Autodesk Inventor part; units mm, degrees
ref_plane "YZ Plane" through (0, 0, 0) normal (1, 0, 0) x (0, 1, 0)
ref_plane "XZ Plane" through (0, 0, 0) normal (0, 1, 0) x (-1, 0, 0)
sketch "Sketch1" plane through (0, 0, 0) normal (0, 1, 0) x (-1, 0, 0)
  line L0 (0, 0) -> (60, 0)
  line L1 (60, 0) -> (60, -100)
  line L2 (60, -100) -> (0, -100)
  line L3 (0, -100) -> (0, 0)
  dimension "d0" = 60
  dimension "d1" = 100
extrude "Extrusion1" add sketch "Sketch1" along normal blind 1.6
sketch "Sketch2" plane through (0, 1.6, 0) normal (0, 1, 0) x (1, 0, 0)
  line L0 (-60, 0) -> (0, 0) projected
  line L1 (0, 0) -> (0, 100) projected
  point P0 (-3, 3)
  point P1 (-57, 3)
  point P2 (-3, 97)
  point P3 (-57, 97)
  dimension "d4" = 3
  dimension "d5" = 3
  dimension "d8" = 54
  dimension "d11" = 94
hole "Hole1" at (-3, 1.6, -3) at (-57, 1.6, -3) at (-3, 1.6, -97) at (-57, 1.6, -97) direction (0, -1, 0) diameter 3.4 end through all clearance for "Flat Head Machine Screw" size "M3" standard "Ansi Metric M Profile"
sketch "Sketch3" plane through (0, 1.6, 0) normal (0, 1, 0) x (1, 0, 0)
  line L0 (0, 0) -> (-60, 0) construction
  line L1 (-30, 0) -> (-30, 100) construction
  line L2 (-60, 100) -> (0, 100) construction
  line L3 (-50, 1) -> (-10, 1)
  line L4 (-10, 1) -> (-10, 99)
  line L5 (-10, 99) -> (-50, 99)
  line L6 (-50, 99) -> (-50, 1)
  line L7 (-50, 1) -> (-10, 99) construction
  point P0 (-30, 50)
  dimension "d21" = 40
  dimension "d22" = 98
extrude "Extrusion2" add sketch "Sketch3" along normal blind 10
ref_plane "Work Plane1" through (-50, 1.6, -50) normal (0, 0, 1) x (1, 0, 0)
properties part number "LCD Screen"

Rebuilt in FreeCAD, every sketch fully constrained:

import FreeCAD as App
import Part
import Sketcher
from FreeCAD import Vector


def add_polygon(sketch, points):
    """Adds a closed chain of lines whose ends are joined by coincident constraints."""
    first, n = sketch.GeometryCount, len(points)
    for a, b in zip(points, points[1:] + points[:1]):
        sketch.addGeometry(Part.LineSegment(App.Vector(*a, 0), App.Vector(*b, 0)), False)
    for i in range(n):
        sketch.addConstraint(Sketcher.Constraint("Coincident", first + i, 2, first + (i + 1) % n, 1))

doc = App.newDocument("Part")
body = doc.addObject("PartDesign::Body", "Body")

sketch1 = body.newObject("Sketcher::SketchObject", "Sketch")
sketch1.AttachmentSupport = (doc.getObject("XZ_Plane"), [""])
sketch1.MapMode = "FlatFace"
add_polygon(sketch1, [(-60, 0), (0, 0), (0, -100), (-60, -100)])
sketch1.addConstraint([
    Sketcher.Constraint("Horizontal", 0),
    Sketcher.Constraint("Vertical", 1),
    Sketcher.Constraint("Horizontal", 2),
    Sketcher.Constraint("Vertical", 3),
    Sketcher.Constraint("Coincident", 0, 2, -1, 1),
    Sketcher.Constraint("DistanceX", 0, 1, 0, 2, 60.0),
    Sketcher.Constraint("DistanceY", 1, 2, 1, 1, 100.0),
])
pad1 = body.newObject("PartDesign::Pad", "Pad")
pad1.Profile = sketch1
pad1.Length = 1.6
pad1.Reversed = True

sketch2 = body.newObject("Sketcher::SketchObject", "Sketch001")
sketch2.AttachmentSupport = (doc.getObject("XZ_Plane"), [""])
sketch2.MapMode = "FlatFace"
sketch2.AttachmentOffset = App.Placement(Vector(0, 0, -1.6), App.Rotation())
sketch2.addGeometry([
    Part.Circle(Vector(-3, -3, 0), Vector(0, 0, 1), 1.7),
    Part.Circle(Vector(-57, -3, 0), Vector(0, 0, 1), 1.7),
    Part.Circle(Vector(-3, -97, 0), Vector(0, 0, 1), 1.7),
    Part.Circle(Vector(-57, -97, 0), Vector(0, 0, 1), 1.7),
], False)
sketch2.addConstraint([
    Sketcher.Constraint("Equal", 0, 1),
    Sketcher.Constraint("Equal", 1, 2),
    Sketcher.Constraint("Equal", 2, 3),
    Sketcher.Constraint("Horizontal", 0, 3, 1, 3),
    Sketcher.Constraint("Horizontal", 2, 3, 3, 3),
    Sketcher.Constraint("Vertical", 0, 3, 2, 3),
    Sketcher.Constraint("Vertical", 1, 3, 3, 3),
    Sketcher.Constraint("Diameter", 0, 3.4),
    Sketcher.Constraint("DistanceX", 0, 3, -1, 1, 3.0),
    Sketcher.Constraint("DistanceY", 0, 3, -1, 1, 3.0),
    Sketcher.Constraint("DistanceX", 1, 3, -1, 1, 57.0),
    Sketcher.Constraint("DistanceY", 2, 3, -1, 1, 97.0),
])
doc.recompute()
hole = body.newObject("PartDesign::Hole", "Hole")
hole.Profile = sketch2
hole.ThreadType = "None"
hole.Diameter = 3.4
hole.DepthType = "ThroughAll"
hole.Reversed = True

sketch3 = body.newObject("Sketcher::SketchObject", "Sketch002")
sketch3.AttachmentSupport = (doc.getObject("XZ_Plane"), [""])
sketch3.MapMode = "FlatFace"
sketch3.AttachmentOffset = App.Placement(Vector(0, 0, -1.6), App.Rotation())
add_polygon(sketch3, [(-50, -99), (-50, -1), (-10, -1), (-10, -99)])
sketch3.addConstraint([
    Sketcher.Constraint("Vertical", 0),
    Sketcher.Constraint("Horizontal", 1),
    Sketcher.Constraint("Vertical", 2),
    Sketcher.Constraint("Horizontal", 3),
    Sketcher.Constraint("DistanceX", 1, 1, 1, 2, 40.0),
    Sketcher.Constraint("DistanceY", 0, 1, 0, 2, 98.0),
    Sketcher.Constraint("DistanceX", 0, 2, -1, 1, 50.0),
    Sketcher.Constraint("DistanceY", 0, 2, -1, 1, 1.0),
])
pad2 = body.newObject("PartDesign::Pad", "Pad001")
pad2.Profile = sketch3
pad2.Length = 10
pad2.Reversed = True

doc.recompute()
